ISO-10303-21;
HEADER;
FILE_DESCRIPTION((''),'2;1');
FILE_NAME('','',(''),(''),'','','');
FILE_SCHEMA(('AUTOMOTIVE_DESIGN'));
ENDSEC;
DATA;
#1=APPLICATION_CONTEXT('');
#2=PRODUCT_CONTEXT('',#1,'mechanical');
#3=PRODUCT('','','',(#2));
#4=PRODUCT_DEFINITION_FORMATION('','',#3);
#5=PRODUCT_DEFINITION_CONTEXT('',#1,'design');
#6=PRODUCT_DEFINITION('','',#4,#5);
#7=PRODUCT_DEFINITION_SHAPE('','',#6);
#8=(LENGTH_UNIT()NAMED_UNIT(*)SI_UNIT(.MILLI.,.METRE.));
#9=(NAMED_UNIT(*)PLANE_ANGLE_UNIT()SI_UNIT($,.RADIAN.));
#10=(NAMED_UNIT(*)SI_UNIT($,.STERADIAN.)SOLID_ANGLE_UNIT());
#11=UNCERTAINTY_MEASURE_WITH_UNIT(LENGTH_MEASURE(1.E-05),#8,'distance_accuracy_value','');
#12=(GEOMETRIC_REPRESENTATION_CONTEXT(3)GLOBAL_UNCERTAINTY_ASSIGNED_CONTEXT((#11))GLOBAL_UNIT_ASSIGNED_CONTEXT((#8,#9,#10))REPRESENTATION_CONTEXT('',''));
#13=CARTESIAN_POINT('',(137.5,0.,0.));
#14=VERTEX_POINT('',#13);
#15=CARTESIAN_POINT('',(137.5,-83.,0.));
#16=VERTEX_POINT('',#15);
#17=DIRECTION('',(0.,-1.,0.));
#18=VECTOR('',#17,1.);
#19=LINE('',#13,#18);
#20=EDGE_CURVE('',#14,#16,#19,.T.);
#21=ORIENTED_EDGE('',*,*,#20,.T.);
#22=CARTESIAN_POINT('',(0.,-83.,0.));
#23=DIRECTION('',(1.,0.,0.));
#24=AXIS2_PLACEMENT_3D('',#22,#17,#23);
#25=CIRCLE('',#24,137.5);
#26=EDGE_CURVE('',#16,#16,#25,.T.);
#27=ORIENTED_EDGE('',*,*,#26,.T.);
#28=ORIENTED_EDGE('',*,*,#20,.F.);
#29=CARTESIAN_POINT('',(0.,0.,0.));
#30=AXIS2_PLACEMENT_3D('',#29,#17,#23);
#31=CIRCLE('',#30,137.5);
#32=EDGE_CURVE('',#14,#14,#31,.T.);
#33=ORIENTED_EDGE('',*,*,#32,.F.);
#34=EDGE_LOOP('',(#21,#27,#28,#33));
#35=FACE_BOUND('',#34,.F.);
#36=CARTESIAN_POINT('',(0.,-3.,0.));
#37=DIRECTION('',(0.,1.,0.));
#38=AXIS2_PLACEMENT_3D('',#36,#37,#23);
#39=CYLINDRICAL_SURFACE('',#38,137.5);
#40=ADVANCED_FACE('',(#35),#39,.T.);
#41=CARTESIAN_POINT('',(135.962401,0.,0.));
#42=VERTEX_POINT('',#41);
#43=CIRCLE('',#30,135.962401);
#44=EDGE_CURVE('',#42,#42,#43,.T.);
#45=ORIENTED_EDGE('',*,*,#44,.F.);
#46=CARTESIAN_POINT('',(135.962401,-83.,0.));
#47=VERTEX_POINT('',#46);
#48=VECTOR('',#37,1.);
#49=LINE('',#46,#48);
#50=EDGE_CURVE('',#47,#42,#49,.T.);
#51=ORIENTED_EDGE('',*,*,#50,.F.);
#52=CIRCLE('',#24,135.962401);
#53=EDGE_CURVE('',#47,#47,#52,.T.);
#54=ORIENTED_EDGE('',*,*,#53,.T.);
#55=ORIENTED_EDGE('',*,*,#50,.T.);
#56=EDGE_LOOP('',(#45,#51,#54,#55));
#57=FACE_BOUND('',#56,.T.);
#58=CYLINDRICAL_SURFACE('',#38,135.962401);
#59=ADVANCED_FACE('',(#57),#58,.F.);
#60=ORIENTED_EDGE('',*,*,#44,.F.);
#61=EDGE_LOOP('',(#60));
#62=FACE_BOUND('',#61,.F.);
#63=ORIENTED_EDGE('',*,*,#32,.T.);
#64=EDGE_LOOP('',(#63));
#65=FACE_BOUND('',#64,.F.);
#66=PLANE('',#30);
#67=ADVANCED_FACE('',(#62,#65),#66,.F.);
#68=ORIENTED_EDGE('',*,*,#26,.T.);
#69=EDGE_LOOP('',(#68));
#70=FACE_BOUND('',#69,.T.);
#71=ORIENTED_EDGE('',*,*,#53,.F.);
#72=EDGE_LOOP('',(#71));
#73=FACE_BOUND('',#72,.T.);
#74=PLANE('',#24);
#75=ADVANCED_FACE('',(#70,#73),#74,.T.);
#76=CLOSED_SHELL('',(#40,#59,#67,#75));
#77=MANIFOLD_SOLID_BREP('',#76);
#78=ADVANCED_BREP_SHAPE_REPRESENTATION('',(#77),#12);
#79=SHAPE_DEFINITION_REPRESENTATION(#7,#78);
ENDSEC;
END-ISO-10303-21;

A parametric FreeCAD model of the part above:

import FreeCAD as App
import Part
import Sketcher

doc = App.newDocument("Part")
body = doc.addObject("PartDesign::Body", "Body")

# Sketch on XZ plane
sketch1 = body.newObject("Sketcher::SketchObject", "Sketch")
sketch1.AttachmentSupport = (doc.getObject("XZ_Plane"), [""])
sketch1.MapMode = "FlatFace"
sketch1.addGeometry([
    Part.Circle(App.Vector(0, 0, 0), App.Vector(0, 0, 1), 138),
    Part.Circle(App.Vector(0, 0, 0), App.Vector(0, 0, 1), 136),
], False)
sketch1.addConstraint([
    Sketcher.Constraint("Coincident", 0, 3, -1, 1),
    Sketcher.Constraint("Coincident", 1, 3, -1, 1),
    Sketcher.Constraint("Diameter", 0, 275.0),
    Sketcher.Constraint("Diameter", 1, 271.924802),
])
pad1 = body.newObject("PartDesign::Pad", "Pad")
pad1.Profile = sketch1
pad1.Length = 3

# Sketch on XZ plane
sketch2 = body.newObject("Sketcher::SketchObject", "Sketch001")
sketch2.AttachmentSupport = (doc.getObject("XZ_Plane"), [""])
sketch2.MapMode = "FlatFace"
sketch2.AttachmentOffset = App.Placement(App.Vector(0, 0, 3), App.Rotation())
sketch2.addGeometry([
    Part.Circle(App.Vector(0, 0, 0), App.Vector(0, 0, 1), 138),
    Part.Circle(App.Vector(0, 0, 0), App.Vector(0, 0, 1), 136),
], False)
sketch2.addConstraint([
    Sketcher.Constraint("Coincident", 0, 3, -1, 1),
    Sketcher.Constraint("Coincident", 1, 3, -1, 1),
    Sketcher.Constraint("Diameter", 0, 275.0),
    Sketcher.Constraint("Diameter", 1, 271.924802),
])
pad2 = body.newObject("PartDesign::Pad", "Pad001")
pad2.Profile = sketch2
pad2.Length = 80

doc.recompute()
